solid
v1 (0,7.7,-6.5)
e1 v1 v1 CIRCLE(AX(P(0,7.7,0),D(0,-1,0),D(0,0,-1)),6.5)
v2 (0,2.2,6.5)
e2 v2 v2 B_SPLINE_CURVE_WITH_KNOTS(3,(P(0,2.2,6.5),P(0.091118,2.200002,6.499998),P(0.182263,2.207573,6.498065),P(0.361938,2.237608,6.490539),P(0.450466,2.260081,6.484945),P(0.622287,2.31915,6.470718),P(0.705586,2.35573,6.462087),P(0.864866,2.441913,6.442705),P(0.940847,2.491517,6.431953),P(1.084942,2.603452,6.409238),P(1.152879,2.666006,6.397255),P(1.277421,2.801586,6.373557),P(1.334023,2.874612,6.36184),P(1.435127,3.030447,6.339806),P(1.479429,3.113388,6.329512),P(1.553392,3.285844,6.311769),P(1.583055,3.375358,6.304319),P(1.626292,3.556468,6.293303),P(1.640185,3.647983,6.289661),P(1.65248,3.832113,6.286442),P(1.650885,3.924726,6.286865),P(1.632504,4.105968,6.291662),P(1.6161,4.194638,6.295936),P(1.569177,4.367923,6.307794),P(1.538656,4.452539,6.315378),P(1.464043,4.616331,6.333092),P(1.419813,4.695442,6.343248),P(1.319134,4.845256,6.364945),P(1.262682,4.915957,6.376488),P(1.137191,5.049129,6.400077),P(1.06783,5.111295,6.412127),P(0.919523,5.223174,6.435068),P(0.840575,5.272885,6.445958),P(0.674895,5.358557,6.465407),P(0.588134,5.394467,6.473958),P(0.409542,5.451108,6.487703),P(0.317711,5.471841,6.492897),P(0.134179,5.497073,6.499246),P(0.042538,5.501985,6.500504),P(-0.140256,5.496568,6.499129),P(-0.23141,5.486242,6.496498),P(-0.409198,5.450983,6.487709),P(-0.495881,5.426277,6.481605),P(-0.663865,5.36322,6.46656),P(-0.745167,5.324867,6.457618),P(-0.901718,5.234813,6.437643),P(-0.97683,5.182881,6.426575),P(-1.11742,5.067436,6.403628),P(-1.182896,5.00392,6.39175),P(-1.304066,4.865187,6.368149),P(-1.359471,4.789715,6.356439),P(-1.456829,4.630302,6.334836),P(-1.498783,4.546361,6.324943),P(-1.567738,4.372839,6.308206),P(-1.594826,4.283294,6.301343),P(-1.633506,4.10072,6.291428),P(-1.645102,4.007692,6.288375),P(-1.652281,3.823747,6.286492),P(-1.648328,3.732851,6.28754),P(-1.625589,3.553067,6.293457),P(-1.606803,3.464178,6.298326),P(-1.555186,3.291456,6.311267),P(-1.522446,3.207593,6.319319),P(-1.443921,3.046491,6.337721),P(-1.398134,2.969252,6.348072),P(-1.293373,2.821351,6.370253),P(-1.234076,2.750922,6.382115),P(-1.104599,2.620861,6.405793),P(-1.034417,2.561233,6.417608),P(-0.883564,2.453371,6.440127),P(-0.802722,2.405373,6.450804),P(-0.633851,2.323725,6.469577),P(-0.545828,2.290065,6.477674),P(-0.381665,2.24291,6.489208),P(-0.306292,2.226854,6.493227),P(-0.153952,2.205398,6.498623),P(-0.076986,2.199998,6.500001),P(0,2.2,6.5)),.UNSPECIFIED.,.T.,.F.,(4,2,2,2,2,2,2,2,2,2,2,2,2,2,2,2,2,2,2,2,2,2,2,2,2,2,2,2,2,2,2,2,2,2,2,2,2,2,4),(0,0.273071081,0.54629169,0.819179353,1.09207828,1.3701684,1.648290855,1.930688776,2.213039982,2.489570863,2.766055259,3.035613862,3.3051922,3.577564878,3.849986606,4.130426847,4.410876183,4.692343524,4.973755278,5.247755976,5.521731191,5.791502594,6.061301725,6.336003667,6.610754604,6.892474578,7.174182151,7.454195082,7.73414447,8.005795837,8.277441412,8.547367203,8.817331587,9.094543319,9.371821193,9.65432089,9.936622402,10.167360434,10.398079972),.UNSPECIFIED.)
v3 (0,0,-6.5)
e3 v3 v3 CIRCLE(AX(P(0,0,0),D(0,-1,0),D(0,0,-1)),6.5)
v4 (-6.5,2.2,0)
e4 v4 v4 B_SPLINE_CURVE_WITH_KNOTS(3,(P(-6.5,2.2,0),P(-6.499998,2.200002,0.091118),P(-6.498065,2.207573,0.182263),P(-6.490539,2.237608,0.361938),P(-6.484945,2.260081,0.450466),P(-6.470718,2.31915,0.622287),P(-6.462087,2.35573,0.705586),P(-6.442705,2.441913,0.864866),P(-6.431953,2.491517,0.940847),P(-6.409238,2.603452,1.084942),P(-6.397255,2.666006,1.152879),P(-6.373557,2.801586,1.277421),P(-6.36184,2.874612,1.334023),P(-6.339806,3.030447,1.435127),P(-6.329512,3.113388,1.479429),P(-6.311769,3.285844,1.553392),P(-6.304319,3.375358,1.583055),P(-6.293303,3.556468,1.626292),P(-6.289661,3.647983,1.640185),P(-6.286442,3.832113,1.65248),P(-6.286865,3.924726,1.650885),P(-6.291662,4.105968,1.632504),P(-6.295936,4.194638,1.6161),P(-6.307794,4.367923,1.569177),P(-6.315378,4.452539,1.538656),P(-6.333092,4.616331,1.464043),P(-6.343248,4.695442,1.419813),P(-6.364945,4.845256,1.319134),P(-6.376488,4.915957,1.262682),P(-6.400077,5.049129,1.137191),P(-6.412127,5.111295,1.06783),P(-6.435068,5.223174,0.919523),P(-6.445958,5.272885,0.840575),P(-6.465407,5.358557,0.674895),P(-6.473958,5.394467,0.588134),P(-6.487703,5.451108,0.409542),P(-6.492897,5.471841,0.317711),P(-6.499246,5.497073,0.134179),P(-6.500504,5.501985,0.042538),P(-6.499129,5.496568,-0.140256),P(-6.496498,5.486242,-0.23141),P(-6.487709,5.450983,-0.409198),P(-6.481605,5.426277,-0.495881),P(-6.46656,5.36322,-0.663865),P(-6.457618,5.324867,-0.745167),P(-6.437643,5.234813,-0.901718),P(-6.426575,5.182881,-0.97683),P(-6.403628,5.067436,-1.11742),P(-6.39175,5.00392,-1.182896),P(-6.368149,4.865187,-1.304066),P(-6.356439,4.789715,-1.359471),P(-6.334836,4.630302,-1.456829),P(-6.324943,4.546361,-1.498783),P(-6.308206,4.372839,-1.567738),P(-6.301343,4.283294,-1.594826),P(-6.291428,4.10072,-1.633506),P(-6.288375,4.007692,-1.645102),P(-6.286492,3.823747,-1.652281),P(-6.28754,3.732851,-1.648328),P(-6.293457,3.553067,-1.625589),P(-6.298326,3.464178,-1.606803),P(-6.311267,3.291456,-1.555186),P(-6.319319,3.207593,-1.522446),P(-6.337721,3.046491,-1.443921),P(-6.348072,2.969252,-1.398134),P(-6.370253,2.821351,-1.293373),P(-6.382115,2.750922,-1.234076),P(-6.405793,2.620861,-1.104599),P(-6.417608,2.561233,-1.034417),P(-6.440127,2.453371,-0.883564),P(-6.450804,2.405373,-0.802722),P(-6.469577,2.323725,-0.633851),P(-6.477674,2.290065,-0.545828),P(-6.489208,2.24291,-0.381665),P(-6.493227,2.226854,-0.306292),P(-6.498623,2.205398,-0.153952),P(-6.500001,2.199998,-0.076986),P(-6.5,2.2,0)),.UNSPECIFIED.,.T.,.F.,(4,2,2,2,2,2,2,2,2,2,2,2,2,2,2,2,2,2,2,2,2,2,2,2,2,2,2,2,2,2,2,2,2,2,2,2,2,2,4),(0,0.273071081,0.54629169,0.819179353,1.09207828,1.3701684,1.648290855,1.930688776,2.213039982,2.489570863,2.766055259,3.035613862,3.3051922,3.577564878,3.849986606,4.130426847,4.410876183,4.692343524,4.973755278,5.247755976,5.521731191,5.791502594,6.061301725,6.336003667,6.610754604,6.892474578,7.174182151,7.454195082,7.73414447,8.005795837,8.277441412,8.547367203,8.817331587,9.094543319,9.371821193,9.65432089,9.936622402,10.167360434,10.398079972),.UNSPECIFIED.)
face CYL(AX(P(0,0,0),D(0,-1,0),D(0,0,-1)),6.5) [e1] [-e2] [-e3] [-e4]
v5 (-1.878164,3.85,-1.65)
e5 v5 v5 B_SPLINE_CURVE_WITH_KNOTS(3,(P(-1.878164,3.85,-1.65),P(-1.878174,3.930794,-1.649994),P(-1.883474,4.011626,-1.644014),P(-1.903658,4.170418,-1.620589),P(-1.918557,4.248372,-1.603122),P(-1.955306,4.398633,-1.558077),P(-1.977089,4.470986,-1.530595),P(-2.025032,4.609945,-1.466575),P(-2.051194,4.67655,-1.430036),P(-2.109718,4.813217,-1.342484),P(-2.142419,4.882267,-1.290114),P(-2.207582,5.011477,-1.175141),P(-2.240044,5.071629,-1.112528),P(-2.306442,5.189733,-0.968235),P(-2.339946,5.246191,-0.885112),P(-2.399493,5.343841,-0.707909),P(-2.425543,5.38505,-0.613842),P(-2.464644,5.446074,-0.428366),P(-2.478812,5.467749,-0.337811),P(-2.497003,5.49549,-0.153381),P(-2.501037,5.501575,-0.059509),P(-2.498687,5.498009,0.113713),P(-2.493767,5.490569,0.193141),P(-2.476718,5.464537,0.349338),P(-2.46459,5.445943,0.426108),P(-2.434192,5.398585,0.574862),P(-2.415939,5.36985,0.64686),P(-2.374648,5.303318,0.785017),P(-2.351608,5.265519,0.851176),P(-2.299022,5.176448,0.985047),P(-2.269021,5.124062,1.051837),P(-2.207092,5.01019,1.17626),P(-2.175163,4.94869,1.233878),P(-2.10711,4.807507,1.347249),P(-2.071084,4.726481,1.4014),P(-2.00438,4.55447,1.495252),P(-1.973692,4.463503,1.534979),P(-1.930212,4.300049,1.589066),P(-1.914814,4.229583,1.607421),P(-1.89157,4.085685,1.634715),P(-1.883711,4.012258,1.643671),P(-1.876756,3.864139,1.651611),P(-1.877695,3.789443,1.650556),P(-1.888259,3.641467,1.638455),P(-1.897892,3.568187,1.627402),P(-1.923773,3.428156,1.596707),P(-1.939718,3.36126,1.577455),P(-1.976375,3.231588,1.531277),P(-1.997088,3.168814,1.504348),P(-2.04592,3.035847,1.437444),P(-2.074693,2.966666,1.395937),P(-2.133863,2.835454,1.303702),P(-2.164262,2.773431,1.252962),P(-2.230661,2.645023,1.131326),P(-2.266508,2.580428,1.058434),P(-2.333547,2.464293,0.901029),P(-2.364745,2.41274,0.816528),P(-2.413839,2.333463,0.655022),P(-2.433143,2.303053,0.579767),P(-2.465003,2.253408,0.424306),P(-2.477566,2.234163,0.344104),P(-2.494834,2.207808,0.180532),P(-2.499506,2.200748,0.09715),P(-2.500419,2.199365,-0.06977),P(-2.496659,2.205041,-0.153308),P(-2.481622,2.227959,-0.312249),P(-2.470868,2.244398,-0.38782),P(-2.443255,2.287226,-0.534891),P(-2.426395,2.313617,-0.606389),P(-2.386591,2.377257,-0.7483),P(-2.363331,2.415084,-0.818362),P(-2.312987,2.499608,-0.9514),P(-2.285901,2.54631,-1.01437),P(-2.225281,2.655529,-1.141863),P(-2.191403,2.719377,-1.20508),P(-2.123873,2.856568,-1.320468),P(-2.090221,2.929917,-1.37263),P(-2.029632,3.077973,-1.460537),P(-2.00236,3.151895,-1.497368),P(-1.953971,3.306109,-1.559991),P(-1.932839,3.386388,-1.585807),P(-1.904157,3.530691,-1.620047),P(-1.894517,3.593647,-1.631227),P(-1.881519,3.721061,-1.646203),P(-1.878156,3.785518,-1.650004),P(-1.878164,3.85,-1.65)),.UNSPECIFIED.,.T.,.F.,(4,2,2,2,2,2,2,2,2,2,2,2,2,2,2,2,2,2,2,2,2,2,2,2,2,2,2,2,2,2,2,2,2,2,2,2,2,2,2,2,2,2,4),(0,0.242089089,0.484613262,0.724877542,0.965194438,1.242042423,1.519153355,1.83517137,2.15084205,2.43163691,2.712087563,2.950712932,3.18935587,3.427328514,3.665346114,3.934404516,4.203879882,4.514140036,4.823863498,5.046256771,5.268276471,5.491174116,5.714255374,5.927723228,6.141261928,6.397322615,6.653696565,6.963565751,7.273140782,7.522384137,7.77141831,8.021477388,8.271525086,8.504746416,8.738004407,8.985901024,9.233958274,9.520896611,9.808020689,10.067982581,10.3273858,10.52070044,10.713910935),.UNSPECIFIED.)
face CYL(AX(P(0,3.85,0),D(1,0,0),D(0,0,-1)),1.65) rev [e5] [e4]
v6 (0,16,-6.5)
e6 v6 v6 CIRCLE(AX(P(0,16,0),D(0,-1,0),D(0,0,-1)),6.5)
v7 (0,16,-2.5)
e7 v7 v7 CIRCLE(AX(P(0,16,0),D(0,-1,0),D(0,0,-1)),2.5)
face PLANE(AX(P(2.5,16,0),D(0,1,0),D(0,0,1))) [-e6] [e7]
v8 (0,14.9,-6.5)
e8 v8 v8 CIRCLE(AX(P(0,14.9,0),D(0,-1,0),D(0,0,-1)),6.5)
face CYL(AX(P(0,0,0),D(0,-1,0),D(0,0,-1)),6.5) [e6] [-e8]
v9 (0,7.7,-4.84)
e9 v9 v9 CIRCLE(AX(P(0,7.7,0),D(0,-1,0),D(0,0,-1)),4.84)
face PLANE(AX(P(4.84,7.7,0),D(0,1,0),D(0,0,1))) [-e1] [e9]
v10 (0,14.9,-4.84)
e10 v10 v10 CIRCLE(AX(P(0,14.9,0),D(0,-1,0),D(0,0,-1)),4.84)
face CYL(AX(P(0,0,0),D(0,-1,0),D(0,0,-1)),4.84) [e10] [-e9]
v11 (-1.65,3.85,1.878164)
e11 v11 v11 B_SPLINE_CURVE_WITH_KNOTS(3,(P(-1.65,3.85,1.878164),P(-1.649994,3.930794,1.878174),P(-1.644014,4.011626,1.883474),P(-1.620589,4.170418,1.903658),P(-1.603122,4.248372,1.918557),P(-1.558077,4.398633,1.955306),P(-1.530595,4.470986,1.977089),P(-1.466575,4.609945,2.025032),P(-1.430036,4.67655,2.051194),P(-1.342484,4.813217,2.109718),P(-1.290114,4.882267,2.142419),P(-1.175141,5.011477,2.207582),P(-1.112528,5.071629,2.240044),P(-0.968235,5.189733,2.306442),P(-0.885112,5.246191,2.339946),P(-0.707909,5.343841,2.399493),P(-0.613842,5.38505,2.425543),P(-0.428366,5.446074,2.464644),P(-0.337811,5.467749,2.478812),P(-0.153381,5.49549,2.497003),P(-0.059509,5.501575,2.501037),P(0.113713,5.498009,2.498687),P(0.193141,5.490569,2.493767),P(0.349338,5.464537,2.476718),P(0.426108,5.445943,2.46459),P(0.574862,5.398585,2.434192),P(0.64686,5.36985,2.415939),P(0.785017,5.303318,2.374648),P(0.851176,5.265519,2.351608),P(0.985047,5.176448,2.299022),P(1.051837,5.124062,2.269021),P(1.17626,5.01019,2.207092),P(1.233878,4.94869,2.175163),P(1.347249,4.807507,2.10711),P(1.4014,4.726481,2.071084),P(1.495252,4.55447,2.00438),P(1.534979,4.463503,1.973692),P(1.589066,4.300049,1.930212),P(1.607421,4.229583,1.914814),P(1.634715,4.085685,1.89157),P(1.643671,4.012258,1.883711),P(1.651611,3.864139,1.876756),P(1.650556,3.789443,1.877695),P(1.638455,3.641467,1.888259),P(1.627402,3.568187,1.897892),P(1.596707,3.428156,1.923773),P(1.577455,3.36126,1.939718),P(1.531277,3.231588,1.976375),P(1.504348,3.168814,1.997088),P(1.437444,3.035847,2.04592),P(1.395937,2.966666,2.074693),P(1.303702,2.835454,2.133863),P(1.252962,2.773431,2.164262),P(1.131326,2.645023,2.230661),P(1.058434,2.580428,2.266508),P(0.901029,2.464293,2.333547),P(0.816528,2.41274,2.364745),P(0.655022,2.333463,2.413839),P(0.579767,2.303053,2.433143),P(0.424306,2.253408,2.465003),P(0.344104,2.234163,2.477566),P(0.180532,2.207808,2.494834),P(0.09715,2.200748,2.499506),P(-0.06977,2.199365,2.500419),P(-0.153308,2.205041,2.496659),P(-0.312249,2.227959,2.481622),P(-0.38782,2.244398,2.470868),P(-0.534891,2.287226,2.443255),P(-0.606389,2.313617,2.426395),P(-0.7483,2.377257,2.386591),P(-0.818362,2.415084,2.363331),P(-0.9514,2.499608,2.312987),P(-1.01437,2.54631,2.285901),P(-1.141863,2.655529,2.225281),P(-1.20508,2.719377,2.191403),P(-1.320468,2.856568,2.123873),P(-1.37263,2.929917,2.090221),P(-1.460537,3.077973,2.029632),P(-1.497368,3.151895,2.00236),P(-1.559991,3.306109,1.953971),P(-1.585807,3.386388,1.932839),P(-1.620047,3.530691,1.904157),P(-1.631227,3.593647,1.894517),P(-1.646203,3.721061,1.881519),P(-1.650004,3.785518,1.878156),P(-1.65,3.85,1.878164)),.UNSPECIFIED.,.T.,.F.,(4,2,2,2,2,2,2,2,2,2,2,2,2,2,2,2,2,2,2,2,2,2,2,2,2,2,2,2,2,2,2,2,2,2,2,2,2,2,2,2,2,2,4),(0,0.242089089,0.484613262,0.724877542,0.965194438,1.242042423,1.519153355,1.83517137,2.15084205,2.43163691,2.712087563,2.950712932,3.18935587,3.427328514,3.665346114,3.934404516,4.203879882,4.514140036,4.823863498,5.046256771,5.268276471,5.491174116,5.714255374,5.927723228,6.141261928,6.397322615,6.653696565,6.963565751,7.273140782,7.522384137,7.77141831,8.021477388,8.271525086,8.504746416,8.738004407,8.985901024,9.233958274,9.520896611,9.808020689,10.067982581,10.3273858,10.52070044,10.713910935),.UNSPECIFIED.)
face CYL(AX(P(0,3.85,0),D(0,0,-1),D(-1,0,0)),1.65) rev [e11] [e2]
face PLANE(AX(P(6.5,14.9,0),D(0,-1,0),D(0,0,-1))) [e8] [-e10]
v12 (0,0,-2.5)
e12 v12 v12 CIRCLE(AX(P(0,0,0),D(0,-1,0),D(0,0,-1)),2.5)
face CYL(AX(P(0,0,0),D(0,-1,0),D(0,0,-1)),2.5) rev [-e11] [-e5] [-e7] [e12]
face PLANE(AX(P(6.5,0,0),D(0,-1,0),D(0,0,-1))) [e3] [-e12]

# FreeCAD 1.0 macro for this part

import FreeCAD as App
import Part
import Sketcher
from FreeCAD import Vector

doc = App.newDocument("Part")
body = doc.addObject("PartDesign::Body", "Body")

# Sketch on XY plane
sketch1 = body.newObject("Sketcher::SketchObject", "Sketch")
sketch1.AttachmentSupport = (doc.getObject("XY_Plane"), [""])
sketch1.MapMode = "FlatFace"
sketch1.addGeometry([
    Part.LineSegment(Vector(6.5, 16, 0), Vector(2.5, 16, 0)),  # 0
    Part.LineSegment(Vector(2.5, 16, 0), Vector(2.5, 0, 0)),  # 1
    Part.LineSegment(Vector(2.5, 0, 0), Vector(6.5, 0, 0)),  # 2
    Part.LineSegment(Vector(6.5, 0, 0), Vector(6.5, 7.7, 0)),  # 3
    Part.LineSegment(Vector(6.5, 7.7, 0), Vector(4.8, 7.7, 0)),  # 4
    Part.LineSegment(Vector(4.8, 7.7, 0), Vector(4.8, 14.9, 0)),  # 5
    Part.LineSegment(Vector(4.8, 14.9, 0), Vector(6.5, 14.9, 0)),  # 6
    Part.LineSegment(Vector(6.5, 14.9, 0), Vector(6.5, 16, 0)),  # 7
], False)
sketch1.addConstraint([
    Sketcher.Constraint("Coincident", 0, 2, 1, 1),
    Sketcher.Constraint("Coincident", 1, 2, 2, 1),
    Sketcher.Constraint("Coincident", 2, 2, 3, 1),
    Sketcher.Constraint("Coincident", 3, 2, 4, 1),
    Sketcher.Constraint("Coincident", 4, 2, 5, 1),
    Sketcher.Constraint("Coincident", 5, 2, 6, 1),
    Sketcher.Constraint("Coincident", 6, 2, 7, 1),
    Sketcher.Constraint("Coincident", 7, 2, 0, 1),
    Sketcher.Constraint("Horizontal", 0),
    Sketcher.Constraint("Vertical", 1),
    Sketcher.Constraint("Horizontal", 2),
    Sketcher.Constraint("Vertical", 3),
    Sketcher.Constraint("Horizontal", 4),
    Sketcher.Constraint("Vertical", 5),
    Sketcher.Constraint("Horizontal", 6),
    Sketcher.Constraint("Vertical", 7),
    Sketcher.Constraint("PointOnObject", 1, 2, -1),
    Sketcher.Constraint("Vertical", 3, 2, 6, 2),
    Sketcher.Constraint("DistanceX", 0, 2, 0, 1, 4.0),
    Sketcher.Constraint("DistanceY", 1, 2, 1, 1, 16.0),
    Sketcher.Constraint("DistanceY", 3, 1, 3, 2, 7.7),
    Sketcher.Constraint("DistanceY", 5, 1, 5, 2, 7.2),
    Sketcher.Constraint("DistanceX", 4, 2, 4, 1, 1.66),
    Sketcher.Constraint("DistanceX", -1, 1, 0, 2, 2.5),
])
revolution = body.newObject("PartDesign::Revolution", "Revolution")
revolution.Profile = sketch1
revolution.ReferenceAxis = (sketch1, ["V_Axis"])
revolution.Angle = 360

# Sketch on YZ plane
sketch2 = body.newObject("Sketcher::SketchObject", "Sketch001")
sketch2.AttachmentSupport = (doc.getObject("YZ_Plane"), [""])
sketch2.MapMode = "FlatFace"
sketch2.addGeometry([
    Part.LineSegment(Vector(3.9, 6.5, 0), Vector(3.9, 0, 0)),
    Part.LineSegment(Vector(3.9, 0, 0), Vector(5.5, 0, 0)),
    Part.LineSegment(Vector(5.5, 0, 0), Vector(5.5, 6.5, 0)),
    Part.LineSegment(Vector(5.5, 6.5, 0), Vector(3.9, 6.5, 0)),
], False)
sketch2.addGeometry(Part.LineSegment(Vector(3.9, 0, 0), Vector(3.9, 6.5, 0)), True)  # axis
sketch2.addConstraint([
    Sketcher.Constraint("Coincident", 0, 2, 1, 1),
    Sketcher.Constraint("Coincident", 1, 2, 2, 1),
    Sketcher.Constraint("Coincident", 2, 2, 3, 1),
    Sketcher.Constraint("Coincident", 3, 2, 0, 1),
    Sketcher.Constraint("Vertical", 0),
    Sketcher.Constraint("Horizontal", 1),
    Sketcher.Constraint("Vertical", 2),
    Sketcher.Constraint("Horizontal", 3),
    Sketcher.Constraint("Vertical", 4),
    Sketcher.Constraint("Coincident", 4, 1, 0, 2),
    Sketcher.Constraint("PointOnObject", 0, 2, -1),
    Sketcher.Constraint("Horizontal", 2, 2, 4, 2),
    Sketcher.Constraint("DistanceY", 0, 2, 0, 1, 6.5),
    Sketcher.Constraint("DistanceX", 1, 1, 1, 2, 1.65),
    Sketcher.Constraint("DistanceX", -1, 1, 1, 2, 5.5),
])
groove = body.newObject("PartDesign::Groove", "Groove")
groove.Profile = sketch2
groove.ReferenceAxis = (sketch2, ["Axis0"])
groove.Angle = 360
doc.recompute()

polarpattern = body.newObject("PartDesign::PolarPattern", "PolarPattern")
polarpattern.Originals = [groove]
polarpattern.Axis = (doc.getObject("Y_Axis"), [""])
polarpattern.Angle = 90
polarpattern.Occurrences = 2
polarpattern.Reversed = True
body.Tip = polarpattern

doc.recompute()
